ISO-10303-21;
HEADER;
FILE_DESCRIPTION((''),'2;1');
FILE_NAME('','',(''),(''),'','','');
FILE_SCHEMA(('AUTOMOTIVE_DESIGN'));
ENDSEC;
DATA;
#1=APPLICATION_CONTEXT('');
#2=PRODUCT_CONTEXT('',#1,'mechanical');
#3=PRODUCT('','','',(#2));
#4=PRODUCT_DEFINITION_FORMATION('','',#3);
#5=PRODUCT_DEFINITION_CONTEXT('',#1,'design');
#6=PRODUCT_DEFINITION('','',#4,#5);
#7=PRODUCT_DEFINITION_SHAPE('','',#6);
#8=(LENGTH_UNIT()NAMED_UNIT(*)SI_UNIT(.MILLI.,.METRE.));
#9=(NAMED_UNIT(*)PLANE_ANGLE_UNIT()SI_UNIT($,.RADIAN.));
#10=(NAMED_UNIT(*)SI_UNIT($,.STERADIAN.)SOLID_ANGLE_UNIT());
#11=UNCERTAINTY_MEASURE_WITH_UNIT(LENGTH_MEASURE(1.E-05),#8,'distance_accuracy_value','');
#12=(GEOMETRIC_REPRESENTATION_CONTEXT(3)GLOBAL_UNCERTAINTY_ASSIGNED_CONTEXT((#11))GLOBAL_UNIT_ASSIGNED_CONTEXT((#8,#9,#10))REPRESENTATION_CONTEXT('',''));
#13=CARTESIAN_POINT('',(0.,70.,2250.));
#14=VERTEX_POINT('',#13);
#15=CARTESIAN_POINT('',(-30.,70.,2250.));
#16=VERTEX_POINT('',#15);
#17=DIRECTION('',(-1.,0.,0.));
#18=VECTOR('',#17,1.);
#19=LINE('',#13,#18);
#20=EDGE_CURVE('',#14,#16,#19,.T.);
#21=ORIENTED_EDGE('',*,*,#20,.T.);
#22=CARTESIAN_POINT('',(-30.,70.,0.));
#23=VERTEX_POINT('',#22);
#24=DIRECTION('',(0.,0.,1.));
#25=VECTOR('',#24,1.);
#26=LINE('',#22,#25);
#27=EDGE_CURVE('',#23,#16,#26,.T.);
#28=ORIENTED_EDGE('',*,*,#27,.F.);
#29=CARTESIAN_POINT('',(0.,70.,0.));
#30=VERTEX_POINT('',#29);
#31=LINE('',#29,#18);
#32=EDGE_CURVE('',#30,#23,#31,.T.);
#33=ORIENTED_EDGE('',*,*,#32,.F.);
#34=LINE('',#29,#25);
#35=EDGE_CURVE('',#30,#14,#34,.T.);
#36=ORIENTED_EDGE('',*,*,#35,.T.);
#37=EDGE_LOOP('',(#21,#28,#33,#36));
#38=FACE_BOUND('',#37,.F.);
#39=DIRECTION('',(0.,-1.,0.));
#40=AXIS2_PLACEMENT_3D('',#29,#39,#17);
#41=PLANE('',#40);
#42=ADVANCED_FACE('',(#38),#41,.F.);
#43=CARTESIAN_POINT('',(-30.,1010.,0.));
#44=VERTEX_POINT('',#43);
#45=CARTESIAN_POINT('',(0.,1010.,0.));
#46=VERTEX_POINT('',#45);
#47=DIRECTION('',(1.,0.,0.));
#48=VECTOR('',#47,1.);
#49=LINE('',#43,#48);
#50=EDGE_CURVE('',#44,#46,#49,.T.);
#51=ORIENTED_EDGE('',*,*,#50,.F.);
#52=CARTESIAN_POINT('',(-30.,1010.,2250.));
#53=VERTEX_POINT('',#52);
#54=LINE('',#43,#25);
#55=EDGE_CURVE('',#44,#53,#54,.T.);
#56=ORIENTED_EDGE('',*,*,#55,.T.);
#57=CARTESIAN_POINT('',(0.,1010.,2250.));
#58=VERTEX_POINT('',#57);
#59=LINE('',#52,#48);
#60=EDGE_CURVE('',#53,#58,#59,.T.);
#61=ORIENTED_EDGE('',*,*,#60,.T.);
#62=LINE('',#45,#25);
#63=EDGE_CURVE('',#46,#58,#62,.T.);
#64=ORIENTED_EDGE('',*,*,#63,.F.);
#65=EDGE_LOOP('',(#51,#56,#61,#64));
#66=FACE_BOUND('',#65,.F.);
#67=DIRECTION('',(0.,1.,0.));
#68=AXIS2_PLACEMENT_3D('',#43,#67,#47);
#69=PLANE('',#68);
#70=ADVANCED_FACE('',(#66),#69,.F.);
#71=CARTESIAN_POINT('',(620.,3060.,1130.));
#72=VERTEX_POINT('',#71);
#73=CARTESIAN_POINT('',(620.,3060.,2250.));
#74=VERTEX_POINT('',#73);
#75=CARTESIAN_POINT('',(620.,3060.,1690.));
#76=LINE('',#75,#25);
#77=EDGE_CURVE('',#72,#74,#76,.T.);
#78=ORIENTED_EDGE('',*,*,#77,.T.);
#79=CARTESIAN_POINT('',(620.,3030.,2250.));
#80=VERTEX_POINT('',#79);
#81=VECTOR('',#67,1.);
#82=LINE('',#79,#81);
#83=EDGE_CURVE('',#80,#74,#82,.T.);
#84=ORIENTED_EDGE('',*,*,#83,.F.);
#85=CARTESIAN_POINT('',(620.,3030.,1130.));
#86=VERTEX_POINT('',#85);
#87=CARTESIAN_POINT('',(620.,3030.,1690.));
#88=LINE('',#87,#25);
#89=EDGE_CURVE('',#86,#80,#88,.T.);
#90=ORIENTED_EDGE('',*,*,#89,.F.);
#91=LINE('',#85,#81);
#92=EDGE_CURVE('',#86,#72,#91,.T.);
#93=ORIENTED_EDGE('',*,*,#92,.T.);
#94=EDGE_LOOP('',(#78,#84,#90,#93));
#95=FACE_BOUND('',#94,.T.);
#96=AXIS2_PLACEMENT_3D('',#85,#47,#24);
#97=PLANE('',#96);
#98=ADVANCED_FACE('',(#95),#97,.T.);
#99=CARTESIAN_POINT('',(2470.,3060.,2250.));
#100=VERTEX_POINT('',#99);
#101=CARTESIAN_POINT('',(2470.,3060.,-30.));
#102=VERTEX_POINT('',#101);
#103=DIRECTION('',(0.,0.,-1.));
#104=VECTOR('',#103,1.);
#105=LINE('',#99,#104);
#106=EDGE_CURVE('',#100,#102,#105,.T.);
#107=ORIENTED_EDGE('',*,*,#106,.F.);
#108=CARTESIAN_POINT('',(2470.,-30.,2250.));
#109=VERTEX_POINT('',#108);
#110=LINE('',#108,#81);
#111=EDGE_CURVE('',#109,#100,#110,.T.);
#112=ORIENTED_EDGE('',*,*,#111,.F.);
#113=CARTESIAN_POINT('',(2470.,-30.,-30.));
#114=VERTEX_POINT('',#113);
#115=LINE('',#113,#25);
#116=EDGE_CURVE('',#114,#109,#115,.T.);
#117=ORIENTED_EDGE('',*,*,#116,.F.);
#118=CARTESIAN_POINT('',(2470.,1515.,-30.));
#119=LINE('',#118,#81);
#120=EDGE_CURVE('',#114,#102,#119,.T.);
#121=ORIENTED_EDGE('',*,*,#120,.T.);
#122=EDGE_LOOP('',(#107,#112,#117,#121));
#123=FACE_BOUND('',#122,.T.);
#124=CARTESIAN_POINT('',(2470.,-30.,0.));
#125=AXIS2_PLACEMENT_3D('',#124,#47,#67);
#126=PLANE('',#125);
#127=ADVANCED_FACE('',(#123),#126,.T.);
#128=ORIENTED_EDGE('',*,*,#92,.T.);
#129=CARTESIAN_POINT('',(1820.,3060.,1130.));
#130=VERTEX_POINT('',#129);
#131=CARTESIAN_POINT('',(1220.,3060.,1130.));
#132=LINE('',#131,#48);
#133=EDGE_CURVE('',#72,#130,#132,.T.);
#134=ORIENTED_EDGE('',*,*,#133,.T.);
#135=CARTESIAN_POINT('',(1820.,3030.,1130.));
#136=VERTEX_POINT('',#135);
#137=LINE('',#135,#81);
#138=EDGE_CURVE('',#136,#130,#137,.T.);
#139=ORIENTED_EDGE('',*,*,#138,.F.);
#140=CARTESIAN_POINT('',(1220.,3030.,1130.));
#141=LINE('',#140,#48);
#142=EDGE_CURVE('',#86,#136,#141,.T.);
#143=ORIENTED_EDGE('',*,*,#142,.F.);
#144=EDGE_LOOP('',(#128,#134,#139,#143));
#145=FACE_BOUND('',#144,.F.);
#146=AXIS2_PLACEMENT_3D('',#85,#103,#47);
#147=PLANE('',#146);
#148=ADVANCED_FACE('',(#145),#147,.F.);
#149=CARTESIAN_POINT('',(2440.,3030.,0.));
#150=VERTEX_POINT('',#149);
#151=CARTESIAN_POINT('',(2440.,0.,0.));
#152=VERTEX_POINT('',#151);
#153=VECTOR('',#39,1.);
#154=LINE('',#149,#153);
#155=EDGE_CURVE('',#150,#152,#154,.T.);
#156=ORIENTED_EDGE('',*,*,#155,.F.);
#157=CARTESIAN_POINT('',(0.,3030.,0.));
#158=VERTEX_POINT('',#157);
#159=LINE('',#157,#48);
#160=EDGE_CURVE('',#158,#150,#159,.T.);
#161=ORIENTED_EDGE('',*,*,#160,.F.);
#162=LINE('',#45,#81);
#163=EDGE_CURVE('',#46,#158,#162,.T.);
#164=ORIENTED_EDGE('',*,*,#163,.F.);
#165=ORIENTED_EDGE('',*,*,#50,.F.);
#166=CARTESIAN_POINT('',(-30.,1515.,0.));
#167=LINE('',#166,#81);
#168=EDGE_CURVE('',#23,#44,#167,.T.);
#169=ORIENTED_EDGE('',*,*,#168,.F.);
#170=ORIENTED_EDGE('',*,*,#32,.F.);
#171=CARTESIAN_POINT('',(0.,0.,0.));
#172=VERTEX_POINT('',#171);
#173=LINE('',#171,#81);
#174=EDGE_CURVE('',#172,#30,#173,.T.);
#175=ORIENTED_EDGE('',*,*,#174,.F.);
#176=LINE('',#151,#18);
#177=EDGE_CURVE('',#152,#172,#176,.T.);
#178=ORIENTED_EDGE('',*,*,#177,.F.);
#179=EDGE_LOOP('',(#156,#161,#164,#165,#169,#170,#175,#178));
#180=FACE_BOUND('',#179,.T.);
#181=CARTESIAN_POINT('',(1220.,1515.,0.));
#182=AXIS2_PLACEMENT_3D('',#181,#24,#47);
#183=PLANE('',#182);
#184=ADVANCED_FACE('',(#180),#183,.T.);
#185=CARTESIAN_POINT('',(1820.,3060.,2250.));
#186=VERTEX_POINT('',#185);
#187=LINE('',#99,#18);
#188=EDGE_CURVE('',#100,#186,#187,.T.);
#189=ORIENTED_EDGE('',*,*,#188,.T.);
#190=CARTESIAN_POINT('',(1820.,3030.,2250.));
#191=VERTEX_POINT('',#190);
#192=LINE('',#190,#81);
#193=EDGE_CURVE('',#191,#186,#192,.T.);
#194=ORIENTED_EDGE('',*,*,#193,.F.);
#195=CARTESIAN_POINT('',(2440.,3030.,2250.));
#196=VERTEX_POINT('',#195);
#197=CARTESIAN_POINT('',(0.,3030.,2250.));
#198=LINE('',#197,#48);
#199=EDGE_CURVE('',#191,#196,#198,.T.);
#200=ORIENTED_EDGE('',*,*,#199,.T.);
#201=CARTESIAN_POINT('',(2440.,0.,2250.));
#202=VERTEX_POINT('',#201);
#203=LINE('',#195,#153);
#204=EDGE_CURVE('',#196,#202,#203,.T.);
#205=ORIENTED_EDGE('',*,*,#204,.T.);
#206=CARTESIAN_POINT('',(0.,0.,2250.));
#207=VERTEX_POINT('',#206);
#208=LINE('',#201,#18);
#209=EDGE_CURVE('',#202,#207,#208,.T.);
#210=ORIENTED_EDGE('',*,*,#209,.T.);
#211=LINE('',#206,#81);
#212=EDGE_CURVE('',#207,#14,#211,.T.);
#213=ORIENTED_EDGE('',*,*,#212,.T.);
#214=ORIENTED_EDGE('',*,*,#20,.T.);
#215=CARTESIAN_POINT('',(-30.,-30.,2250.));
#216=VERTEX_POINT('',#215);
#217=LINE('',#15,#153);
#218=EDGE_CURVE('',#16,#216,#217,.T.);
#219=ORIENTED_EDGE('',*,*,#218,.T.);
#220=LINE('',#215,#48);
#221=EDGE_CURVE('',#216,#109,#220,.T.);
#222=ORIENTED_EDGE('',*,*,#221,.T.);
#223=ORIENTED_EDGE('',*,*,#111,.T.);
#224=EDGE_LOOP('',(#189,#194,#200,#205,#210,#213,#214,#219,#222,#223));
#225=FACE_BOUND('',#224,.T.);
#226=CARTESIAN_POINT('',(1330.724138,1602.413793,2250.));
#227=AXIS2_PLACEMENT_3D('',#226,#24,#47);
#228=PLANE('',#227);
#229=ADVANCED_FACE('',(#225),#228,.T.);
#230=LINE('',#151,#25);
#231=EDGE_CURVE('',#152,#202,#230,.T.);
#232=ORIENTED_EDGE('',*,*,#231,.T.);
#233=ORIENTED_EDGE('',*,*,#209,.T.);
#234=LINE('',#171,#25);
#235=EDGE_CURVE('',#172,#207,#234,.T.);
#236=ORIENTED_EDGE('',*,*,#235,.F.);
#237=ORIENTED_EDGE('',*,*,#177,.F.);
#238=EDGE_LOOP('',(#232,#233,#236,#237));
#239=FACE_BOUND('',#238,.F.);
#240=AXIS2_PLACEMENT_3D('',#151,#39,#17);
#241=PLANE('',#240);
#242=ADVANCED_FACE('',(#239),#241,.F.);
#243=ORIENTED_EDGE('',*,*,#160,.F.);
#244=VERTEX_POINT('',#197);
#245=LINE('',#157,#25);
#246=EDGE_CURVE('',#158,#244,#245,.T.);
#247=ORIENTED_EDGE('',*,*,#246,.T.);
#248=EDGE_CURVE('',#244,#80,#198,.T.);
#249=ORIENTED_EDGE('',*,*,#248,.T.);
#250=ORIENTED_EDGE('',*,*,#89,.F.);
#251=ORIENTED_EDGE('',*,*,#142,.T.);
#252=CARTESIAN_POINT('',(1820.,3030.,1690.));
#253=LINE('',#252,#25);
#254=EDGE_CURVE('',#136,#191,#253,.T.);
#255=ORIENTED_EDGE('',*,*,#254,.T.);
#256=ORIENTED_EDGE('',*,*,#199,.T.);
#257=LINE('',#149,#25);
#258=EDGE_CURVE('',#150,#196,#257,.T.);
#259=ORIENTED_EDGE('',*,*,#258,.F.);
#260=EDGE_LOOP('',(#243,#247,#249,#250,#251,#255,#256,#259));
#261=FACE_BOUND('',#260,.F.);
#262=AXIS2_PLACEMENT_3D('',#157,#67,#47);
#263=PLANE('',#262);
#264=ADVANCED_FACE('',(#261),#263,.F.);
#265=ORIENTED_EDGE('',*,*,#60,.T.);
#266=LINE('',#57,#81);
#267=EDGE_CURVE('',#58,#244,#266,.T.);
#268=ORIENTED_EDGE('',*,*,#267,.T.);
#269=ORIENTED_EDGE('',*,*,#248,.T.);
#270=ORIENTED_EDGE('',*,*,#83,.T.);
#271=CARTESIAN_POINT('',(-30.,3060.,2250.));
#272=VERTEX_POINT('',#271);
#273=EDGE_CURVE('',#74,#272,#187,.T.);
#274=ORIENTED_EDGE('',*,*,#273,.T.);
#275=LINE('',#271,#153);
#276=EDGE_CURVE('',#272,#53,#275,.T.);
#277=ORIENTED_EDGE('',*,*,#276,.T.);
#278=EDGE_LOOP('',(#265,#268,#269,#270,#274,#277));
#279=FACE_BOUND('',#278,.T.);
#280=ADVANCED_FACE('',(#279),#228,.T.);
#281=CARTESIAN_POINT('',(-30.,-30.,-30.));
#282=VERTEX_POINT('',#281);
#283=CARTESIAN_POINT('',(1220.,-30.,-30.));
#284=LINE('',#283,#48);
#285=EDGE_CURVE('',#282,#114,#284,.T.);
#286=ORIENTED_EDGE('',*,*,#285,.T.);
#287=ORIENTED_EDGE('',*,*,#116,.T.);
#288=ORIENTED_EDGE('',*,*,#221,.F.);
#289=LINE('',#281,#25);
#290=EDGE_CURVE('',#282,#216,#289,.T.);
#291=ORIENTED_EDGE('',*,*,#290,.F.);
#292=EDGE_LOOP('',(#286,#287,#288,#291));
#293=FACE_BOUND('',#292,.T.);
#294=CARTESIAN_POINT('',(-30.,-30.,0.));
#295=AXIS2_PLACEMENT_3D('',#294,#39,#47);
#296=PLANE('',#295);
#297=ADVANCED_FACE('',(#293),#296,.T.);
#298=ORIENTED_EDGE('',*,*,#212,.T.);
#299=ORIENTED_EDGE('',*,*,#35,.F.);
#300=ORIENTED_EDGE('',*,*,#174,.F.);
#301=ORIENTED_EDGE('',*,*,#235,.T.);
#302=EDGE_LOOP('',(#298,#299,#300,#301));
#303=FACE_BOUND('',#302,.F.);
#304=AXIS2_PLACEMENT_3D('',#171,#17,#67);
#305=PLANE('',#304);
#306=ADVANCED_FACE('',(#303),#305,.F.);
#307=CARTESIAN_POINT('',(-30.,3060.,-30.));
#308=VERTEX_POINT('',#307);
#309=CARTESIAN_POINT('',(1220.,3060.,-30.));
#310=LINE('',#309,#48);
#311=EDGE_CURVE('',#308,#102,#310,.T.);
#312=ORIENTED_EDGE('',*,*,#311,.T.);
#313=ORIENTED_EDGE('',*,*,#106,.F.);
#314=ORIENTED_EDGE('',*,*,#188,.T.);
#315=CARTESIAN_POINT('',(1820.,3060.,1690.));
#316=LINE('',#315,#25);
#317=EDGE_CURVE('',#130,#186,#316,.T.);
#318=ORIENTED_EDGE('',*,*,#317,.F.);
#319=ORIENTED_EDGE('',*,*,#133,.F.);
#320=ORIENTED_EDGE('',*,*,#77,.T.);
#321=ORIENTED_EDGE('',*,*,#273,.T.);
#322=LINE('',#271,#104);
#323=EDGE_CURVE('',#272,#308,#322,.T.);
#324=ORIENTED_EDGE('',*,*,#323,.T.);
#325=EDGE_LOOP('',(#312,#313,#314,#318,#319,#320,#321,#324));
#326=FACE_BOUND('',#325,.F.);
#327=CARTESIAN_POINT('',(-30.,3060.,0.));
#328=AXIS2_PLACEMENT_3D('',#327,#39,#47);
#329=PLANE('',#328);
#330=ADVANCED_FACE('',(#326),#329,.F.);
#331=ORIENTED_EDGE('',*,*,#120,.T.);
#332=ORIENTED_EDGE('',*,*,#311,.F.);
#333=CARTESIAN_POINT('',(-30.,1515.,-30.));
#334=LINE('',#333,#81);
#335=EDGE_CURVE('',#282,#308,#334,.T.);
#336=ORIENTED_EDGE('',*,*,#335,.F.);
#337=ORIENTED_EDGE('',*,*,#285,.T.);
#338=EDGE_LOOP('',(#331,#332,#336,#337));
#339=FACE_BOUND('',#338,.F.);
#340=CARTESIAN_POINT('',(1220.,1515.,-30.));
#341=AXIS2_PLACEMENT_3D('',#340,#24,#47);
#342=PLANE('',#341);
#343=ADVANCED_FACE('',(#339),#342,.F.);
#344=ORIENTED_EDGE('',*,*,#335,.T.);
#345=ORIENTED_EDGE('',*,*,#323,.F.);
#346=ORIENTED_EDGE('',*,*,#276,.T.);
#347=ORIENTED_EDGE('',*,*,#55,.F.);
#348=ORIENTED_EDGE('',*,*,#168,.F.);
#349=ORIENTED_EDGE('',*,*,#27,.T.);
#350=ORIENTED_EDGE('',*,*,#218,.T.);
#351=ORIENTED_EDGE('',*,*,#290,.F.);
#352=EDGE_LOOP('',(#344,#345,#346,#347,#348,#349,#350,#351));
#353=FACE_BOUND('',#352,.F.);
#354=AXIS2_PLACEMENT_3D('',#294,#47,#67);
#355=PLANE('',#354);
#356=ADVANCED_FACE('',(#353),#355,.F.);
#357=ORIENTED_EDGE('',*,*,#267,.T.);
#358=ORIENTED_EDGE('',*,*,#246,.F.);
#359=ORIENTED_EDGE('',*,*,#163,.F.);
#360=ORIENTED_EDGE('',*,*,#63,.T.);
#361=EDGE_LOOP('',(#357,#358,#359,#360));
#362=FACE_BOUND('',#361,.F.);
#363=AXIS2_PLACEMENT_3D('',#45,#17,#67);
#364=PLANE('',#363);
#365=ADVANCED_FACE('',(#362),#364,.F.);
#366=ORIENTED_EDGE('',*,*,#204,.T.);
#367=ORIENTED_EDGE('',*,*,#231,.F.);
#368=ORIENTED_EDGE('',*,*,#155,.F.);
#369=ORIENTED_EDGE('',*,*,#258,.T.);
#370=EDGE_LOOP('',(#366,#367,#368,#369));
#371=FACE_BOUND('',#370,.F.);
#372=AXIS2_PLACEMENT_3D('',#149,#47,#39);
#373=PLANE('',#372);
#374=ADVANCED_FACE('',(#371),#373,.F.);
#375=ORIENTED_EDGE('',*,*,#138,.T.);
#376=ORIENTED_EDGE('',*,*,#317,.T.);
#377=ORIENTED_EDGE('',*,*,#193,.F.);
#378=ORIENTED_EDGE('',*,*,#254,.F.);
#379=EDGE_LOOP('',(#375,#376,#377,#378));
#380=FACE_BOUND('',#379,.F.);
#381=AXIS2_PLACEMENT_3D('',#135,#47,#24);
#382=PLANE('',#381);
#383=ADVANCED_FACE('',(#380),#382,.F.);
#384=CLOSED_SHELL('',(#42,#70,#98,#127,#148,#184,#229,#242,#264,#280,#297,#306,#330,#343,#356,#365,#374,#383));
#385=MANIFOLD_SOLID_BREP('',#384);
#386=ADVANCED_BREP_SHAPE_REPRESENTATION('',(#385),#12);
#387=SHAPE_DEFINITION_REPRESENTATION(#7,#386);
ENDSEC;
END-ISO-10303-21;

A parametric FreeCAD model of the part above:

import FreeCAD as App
import Part
import Sketcher
from FreeCAD import Vector
Q = App.Units.Quantity

doc = App.newDocument("Part")
params = doc.addObject("Spreadsheet::Sheet", "Params")
for row, (alias, value) in enumerate([
    ("sketch1_width", "2440 mm"),
    ("sketch1_width2", "30 mm"),
    ("sketch1_width3", "2500 mm"),
    ("sketch1_height", "2020 mm"),
    ("sketch1_height2", "3030 mm"),
    ("pad1_length", "2250 mm"),
    ("sketch2_width", "2500 mm"),
    ("sketch2_height", "3090 mm"),
    ("pad2_length", "30 mm"),
    ("sketch3_width", "1200 mm"),
    ("sketch3_height", "1120 mm"),
], start=1):
    params.set(f"A{row}", alias)
    params.set(f"B{row}", "=" + value)
    params.setAlias(f"B{row}", alias)

body = doc.addObject("PartDesign::Body", "Body")

# Sketch on XY plane
sketch1 = body.newObject("Sketcher::SketchObject", "Sketch")
sketch1.AttachmentSupport = (doc.getObject("XY_Plane"), [""])
sketch1.MapMode = "FlatFace"
sketch1.addGeometry(Part.LineSegment(Vector(0, 1010, 0), Vector(0, 3030, 0)), False)
sketch1.addGeometry(Part.LineSegment(Vector(0, 3030, 0), Vector(2440, 3030, 0)), False)
sketch1.addGeometry(Part.LineSegment(Vector(2440, 3030, 0), Vector(2440, 0, 0)), False)
sketch1.addGeometry(Part.LineSegment(Vector(2440, 0, 0), Vector(0, 0, 0)), False)
sketch1.addGeometry(Part.LineSegment(Vector(0, 0, 0), Vector(0, 70, 0)), False)
sketch1.addGeometry(Part.LineSegment(Vector(0, 70, 0), Vector(-30, 70, 0)), False)
sketch1.addGeometry(Part.LineSegment(Vector(-30, 70, 0), Vector(-30, -30, 0)), False)
sketch1.addGeometry(Part.LineSegment(Vector(-30, -30, 0), Vector(2470, -30, 0)), False)
sketch1.addGeometry(Part.LineSegment(Vector(2470, -30, 0), Vector(2470, 3060, 0)), False)
sketch1.addGeometry(Part.LineSegment(Vector(2470, 3060, 0), Vector(-30, 3060, 0)), False)
sketch1.addGeometry(Part.LineSegment(Vector(-30, 3060, 0), Vector(-30, 1010, 0)), False)
sketch1.addGeometry(Part.LineSegment(Vector(-30, 1010, 0), Vector(0, 1010, 0)), False)
sketch1.addConstraint(Sketcher.Constraint("Coincident", 0, 2, 1, 1))
sketch1.addConstraint(Sketcher.Constraint("Coincident", 1, 2, 2, 1))
sketch1.addConstraint(Sketcher.Constraint("Coincident", 2, 2, 3, 1))
sketch1.addConstraint(Sketcher.Constraint("Coincident", 3, 2, 4, 1))
sketch1.addConstraint(Sketcher.Constraint("Coincident", 4, 2, 5, 1))
sketch1.addConstraint(Sketcher.Constraint("Coincident", 5, 2, 6, 1))
sketch1.addConstraint(Sketcher.Constraint("Coincident", 6, 2, 7, 1))
sketch1.addConstraint(Sketcher.Constraint("Coincident", 7, 2, 8, 1))
sketch1.addConstraint(Sketcher.Constraint("Coincident", 8, 2, 9, 1))
sketch1.addConstraint(Sketcher.Constraint("Coincident", 9, 2, 10, 1))
sketch1.addConstraint(Sketcher.Constraint("Coincident", 10, 2, 11, 1))
sketch1.addConstraint(Sketcher.Constraint("Coincident", 11, 2, 0, 1))
sketch1.addConstraint(Sketcher.Constraint("Vertical", 0))
sketch1.addConstraint(Sketcher.Constraint("Horizontal", 1))
sketch1.addConstraint(Sketcher.Constraint("Vertical", 2))
sketch1.addConstraint(Sketcher.Constraint("Horizontal", 3))
sketch1.addConstraint(Sketcher.Constraint("Vertical", 4))
sketch1.addConstraint(Sketcher.Constraint("Horizontal", 5))
sketch1.addConstraint(Sketcher.Constraint("Vertical", 6))
sketch1.addConstraint(Sketcher.Constraint("Horizontal", 7))
sketch1.addConstraint(Sketcher.Constraint("Vertical", 8))
sketch1.addConstraint(Sketcher.Constraint("Horizontal", 9))
sketch1.addConstraint(Sketcher.Constraint("Vertical", 10))
sketch1.addConstraint(Sketcher.Constraint("Horizontal", 11))
sketch1.addConstraint(Sketcher.Constraint("Coincident", 3, 2, -1, 1))
sketch1.addConstraint(Sketcher.Constraint("PointOnObject", 0, 2, -2))
sketch1.addConstraint(Sketcher.Constraint("Vertical", 6, 2, 9, 2))
sketch1.addConstraint(Sketcher.Constraint("DistanceX", 1, 1, 1, 2, Q("2440 mm")))
sketch1.addConstraint(Sketcher.Constraint("DistanceX", 5, 2, 5, 1, Q("30 mm")))
sketch1.addConstraint(Sketcher.Constraint("DistanceX", 7, 1, 7, 2, Q("2500 mm")))
sketch1.addConstraint(Sketcher.Constraint("DistanceY", 0, 1, 0, 2, Q("2020 mm")))
sketch1.addConstraint(Sketcher.Constraint("DistanceY", 2, 2, 2, 1, Q("3030 mm")))
sketch1.addConstraint(Sketcher.Constraint("DistanceY", 4, 1, 4, 2, Q("70 mm")))
sketch1.addConstraint(Sketcher.Constraint("DistanceY", 6, 2, 6, 1, Q("100 mm")))
sketch1.addConstraint(Sketcher.Constraint("DistanceY", 8, 1, 8, 2, Q("3090 mm")))
sketch1.setExpression("Constraints[27]", "Params.sketch1_width")
sketch1.setExpression("Constraints[28]", "Params.sketch1_width2")
sketch1.setExpression("Constraints[29]", "Params.sketch1_width3")
sketch1.setExpression("Constraints[30]", "Params.sketch1_height")
sketch1.setExpression("Constraints[31]", "Params.sketch1_height2")
pad1 = body.newObject("PartDesign::Pad", "Pad")
pad1.Profile = sketch1
pad1.setExpression("Length", "Params.pad1_length")

# Sketch on XY plane
sketch2 = body.newObject("Sketcher::SketchObject", "Sketch001")
sketch2.AttachmentSupport = (doc.getObject("XY_Plane"), [""])
sketch2.MapMode = "FlatFace"
sketch2.addGeometry(Part.LineSegment(Vector(-30, 3060, 0), Vector(-30, -30, 0)), False)
sketch2.addGeometry(Part.LineSegment(Vector(-30, -30, 0), Vector(2470, -30, 0)), False)
sketch2.addGeometry(Part.LineSegment(Vector(2470, -30, 0), Vector(2470, 3060, 0)), False)
sketch2.addGeometry(Part.LineSegment(Vector(2470, 3060, 0), Vector(-30, 3060, 0)), False)
sketch2.addConstraint(Sketcher.Constraint("Coincident", 0, 2, 1, 1))
sketch2.addConstraint(Sketcher.Constraint("Coincident", 1, 2, 2, 1))
sketch2.addConstraint(Sketcher.Constraint("Coincident", 2, 2, 3, 1))
sketch2.addConstraint(Sketcher.Constraint("Coincident", 3, 2, 0, 1))
sketch2.addConstraint(Sketcher.Constraint("Vertical", 0))
sketch2.addConstraint(Sketcher.Constraint("Horizontal", 1))
sketch2.addConstraint(Sketcher.Constraint("Vertical", 2))
sketch2.addConstraint(Sketcher.Constraint("Horizontal", 3))
sketch2.addConstraint(Sketcher.Constraint("DistanceX", 1, 1, 1, 2, Q("2500 mm")))
sketch2.addConstraint(Sketcher.Constraint("DistanceY", 0, 2, 0, 1, Q("3090 mm")))
sketch2.addConstraint(Sketcher.Constraint("DistanceX", 0, 2, -1, 1, Q("30 mm")))
sketch2.addConstraint(Sketcher.Constraint("DistanceY", 0, 2, -1, 1, Q("30 mm")))
sketch2.setExpression("Constraints[8]", "Params.sketch2_width")
sketch2.setExpression("Constraints[9]", "Params.sketch2_height")
pad2 = body.newObject("PartDesign::Pad", "Pad001")
pad2.Profile = sketch2
pad2.setExpression("Length", "Params.pad2_length")
pad2.Reversed = True

# Sketch on XZ plane
sketch3 = body.newObject("Sketcher::SketchObject", "Sketch002")
sketch3.AttachmentSupport = (doc.getObject("XZ_Plane"), [""])
sketch3.MapMode = "FlatFace"
sketch3.AttachmentOffset = App.Placement(Vector(0, 0, -3030), App.Rotation())
sketch3.addGeometry(Part.LineSegment(Vector(620, 2250, 0), Vector(620, 1130, 0)), False)
sketch3.addGeometry(Part.LineSegment(Vector(620, 1130, 0), Vector(1820, 1130, 0)), False)
sketch3.addGeometry(Part.LineSegment(Vector(1820, 1130, 0), Vector(1820, 2250, 0)), False)
sketch3.addGeometry(Part.LineSegment(Vector(1820, 2250, 0), Vector(620, 2250, 0)), False)
sketch3.addConstraint(Sketcher.Constraint("Coincident", 0, 2, 1, 1))
sketch3.addConstraint(Sketcher.Constraint("Coincident", 1, 2, 2, 1))
sketch3.addConstraint(Sketcher.Constraint("Coincident", 2, 2, 3, 1))
sketch3.addConstraint(Sketcher.Constraint("Coincident", 3, 2, 0, 1))
sketch3.addConstraint(Sketcher.Constraint("Vertical", 0))
sketch3.addConstraint(Sketcher.Constraint("Horizontal", 1))
sketch3.addConstraint(Sketcher.Constraint("Vertical", 2))
sketch3.addConstraint(Sketcher.Constraint("Horizontal", 3))
sketch3.addConstraint(Sketcher.Constraint("DistanceX", 1, 1, 1, 2, Q("1200 mm")))
sketch3.addConstraint(Sketcher.Constraint("DistanceY", 0, 2, 0, 1, Q("1120 mm")))
sketch3.addConstraint(Sketcher.Constraint("DistanceX", -1, 1, 0, 2, Q("620 mm")))
sketch3.addConstraint(Sketcher.Constraint("DistanceY", -1, 1, 0, 2, Q("1130 mm")))
sketch3.setExpression("Constraints[8]", "Params.sketch3_width")
sketch3.setExpression("Constraints[9]", "Params.sketch3_height")
pocket1 = body.newObject("PartDesign::Pocket", "Pocket")
pocket1.Profile = sketch3
pocket1.Type = "ThroughAll"

doc.recompute()
